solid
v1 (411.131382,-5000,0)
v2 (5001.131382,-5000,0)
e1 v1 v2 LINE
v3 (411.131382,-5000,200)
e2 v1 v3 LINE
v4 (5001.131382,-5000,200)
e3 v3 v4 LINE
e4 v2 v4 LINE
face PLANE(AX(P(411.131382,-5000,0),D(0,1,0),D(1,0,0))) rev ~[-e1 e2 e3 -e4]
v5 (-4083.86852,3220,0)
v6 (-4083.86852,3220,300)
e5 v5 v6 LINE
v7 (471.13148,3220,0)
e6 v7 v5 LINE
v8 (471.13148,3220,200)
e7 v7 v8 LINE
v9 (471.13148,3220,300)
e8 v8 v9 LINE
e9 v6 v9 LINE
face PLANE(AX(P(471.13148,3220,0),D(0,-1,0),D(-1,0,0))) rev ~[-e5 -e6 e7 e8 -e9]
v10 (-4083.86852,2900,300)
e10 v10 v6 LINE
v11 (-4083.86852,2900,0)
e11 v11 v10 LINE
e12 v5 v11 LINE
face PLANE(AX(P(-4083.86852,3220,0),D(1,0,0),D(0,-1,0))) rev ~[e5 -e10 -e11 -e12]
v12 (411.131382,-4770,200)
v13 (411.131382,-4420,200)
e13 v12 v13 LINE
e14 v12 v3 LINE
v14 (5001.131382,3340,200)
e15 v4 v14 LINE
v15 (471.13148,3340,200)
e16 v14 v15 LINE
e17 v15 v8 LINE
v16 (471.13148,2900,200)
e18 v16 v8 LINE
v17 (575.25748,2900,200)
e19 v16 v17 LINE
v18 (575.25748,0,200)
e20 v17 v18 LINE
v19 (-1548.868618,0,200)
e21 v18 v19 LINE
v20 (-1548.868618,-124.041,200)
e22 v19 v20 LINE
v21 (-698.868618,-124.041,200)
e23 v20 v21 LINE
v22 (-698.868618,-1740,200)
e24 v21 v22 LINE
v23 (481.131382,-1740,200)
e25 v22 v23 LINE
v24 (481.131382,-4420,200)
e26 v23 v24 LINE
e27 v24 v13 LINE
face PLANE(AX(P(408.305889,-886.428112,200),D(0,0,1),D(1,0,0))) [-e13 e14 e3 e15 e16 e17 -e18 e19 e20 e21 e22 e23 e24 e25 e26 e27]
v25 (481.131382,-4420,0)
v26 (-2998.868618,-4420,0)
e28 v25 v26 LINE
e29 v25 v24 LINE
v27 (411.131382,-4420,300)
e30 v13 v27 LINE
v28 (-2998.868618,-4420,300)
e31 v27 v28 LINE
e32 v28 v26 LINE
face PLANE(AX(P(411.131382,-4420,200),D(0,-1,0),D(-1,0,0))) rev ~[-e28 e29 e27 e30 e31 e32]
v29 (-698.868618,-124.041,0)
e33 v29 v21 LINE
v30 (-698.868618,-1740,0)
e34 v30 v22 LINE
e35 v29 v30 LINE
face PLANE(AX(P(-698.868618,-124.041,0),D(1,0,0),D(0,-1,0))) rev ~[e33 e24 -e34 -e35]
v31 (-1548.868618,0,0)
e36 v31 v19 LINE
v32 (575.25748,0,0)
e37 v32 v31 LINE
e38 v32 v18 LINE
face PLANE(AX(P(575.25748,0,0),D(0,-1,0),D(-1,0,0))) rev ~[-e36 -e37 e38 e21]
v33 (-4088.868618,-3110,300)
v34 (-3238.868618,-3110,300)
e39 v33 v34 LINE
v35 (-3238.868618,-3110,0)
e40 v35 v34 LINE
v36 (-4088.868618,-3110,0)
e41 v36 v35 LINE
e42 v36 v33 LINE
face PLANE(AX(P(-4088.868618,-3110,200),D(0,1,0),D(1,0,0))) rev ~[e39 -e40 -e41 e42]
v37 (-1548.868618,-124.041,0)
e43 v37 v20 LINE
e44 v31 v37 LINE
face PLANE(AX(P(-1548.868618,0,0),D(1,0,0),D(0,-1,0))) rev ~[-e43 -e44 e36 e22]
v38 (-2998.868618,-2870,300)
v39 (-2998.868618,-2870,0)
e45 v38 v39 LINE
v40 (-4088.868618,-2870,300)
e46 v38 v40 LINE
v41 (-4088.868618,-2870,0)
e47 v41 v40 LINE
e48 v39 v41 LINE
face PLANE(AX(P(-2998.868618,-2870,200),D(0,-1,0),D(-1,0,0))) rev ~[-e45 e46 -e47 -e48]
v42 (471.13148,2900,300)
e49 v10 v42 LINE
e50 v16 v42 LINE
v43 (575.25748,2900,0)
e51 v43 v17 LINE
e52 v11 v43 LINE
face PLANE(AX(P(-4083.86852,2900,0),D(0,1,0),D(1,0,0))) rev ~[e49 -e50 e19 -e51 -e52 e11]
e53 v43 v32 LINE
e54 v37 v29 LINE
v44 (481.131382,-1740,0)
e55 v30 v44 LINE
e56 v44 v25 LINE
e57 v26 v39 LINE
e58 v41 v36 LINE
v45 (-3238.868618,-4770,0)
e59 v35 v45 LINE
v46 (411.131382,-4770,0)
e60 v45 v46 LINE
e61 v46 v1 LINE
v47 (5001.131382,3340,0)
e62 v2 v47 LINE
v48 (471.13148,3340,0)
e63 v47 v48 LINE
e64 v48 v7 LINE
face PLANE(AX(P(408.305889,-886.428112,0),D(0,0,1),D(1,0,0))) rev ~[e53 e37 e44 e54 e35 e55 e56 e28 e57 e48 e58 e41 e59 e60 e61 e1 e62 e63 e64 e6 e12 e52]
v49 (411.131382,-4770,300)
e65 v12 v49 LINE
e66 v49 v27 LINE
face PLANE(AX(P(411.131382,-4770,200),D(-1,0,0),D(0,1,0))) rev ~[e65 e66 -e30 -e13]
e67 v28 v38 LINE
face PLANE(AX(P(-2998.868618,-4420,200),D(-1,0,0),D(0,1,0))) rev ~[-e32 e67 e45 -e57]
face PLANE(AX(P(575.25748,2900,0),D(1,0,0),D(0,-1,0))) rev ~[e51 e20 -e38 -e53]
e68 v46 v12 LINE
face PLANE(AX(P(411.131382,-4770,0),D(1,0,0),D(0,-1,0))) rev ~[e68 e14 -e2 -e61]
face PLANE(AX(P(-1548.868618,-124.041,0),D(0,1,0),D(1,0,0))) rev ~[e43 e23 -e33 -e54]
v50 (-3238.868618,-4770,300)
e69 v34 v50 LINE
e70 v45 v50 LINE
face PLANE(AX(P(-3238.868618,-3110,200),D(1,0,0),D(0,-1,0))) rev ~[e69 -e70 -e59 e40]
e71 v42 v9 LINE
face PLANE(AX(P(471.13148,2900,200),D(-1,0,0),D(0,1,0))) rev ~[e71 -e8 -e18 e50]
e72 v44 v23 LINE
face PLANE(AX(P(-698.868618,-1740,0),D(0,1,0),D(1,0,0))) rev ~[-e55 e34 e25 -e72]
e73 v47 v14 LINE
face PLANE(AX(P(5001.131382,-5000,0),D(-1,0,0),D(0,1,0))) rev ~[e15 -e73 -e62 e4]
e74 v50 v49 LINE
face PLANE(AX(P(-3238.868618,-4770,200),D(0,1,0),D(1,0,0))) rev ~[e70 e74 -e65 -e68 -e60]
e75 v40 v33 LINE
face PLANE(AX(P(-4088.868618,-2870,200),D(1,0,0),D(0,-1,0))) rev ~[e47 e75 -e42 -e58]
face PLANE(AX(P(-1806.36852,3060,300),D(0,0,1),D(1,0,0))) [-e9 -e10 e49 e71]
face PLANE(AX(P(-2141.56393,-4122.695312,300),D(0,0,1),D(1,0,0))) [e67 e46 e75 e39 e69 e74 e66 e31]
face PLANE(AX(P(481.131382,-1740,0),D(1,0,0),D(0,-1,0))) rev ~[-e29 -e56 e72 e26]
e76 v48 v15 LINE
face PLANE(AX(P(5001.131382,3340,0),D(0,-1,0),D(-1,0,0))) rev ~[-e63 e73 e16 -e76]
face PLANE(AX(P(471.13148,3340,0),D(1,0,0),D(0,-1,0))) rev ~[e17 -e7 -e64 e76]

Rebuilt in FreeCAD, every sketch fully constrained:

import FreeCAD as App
import Part
import Sketcher

V = App.Vector
Q = App.Units.Quantity


def add_polygon(sketch, points):
    """Adds a closed chain of lines whose ends are joined by coincident constraints."""
    first, n = sketch.GeometryCount, len(points)
    for a, b in zip(points, points[1:] + points[:1]):
        sketch.addGeometry(Part.LineSegment(App.Vector(*a, 0), App.Vector(*b, 0)), False)
    for i in range(n):
        sketch.addConstraint(Sketcher.Constraint("Coincident", first + i, 2, first + (i + 1) % n, 1))

doc = App.newDocument("Part")
body = doc.addObject("PartDesign::Body", "Body")

sketch1 = body.newObject("Sketcher::SketchObject", "Sketch")
sketch1.AttachmentSupport = (doc.getObject("XY_Plane"), [""])
sketch1.MapMode = "FlatFace"
add_polygon(sketch1, [(-4089, -2870), (-4089, -3110), (-3239, -3110), (-3239, -4770), (411, -4770), (411, -5000), (5001, -5000), (5001, 3340), (471, 3340), (471, 3220), (-4084, 3220), (-4084, 2900), (575, 2900), (575, 0), (-1549, 0), (-1549, -124), (-699, -124), (-699, -1740), (481, -1740), (481, -4420), (-2999, -4420), (-2999, -2870)])
sketch1.addConstraint([
    Sketcher.Constraint("Vertical", 0),
    Sketcher.Constraint("Horizontal", 1),
    Sketcher.Constraint("Vertical", 2),
    Sketcher.Constraint("Horizontal", 3),
    Sketcher.Constraint("Vertical", 4),
    Sketcher.Constraint("Horizontal", 5),
    Sketcher.Constraint("Vertical", 6),
    Sketcher.Constraint("Horizontal", 7),
    Sketcher.Constraint("Vertical", 8),
    Sketcher.Constraint("Horizontal", 9),
    Sketcher.Constraint("Vertical", 10),
    Sketcher.Constraint("Horizontal", 11),
    Sketcher.Constraint("Vertical", 12),
    Sketcher.Constraint("Horizontal", 13),
    Sketcher.Constraint("Vertical", 14),
    Sketcher.Constraint("Horizontal", 15),
    Sketcher.Constraint("Vertical", 16),
    Sketcher.Constraint("Horizontal", 17),
    Sketcher.Constraint("Vertical", 18),
    Sketcher.Constraint("Horizontal", 19),
    Sketcher.Constraint("Vertical", 20),
    Sketcher.Constraint("Horizontal", 21),
    Sketcher.Constraint("PointOnObject", 12, 2, -1),
    Sketcher.Constraint("Equal", 1, 15),
    Sketcher.Constraint("DistanceX", 1, 1, 1, 2, Q("850 mm")),
    Sketcher.Constraint("DistanceX", 3, 1, 3, 2, Q("3650 mm")),
    Sketcher.Constraint("DistanceX", 5, 1, 5, 2, Q("4590 mm")),
    Sketcher.Constraint("DistanceX", 9, 2, 9, 1, Q("4555 mm")),
    Sketcher.Constraint("DistanceX", 17, 1, 17, 2, Q("1180 mm")),
    Sketcher.Constraint("DistanceX", 19, 2, 19, 1, Q("3480 mm")),
    Sketcher.Constraint("DistanceX", 21, 2, 21, 1, Q("1090 mm")),
    Sketcher.Constraint("DistanceY", 0, 2, 0, 1, Q("240 mm")),
    Sketcher.Constraint("DistanceY", 2, 2, 2, 1, Q("1660 mm")),
    Sketcher.Constraint("DistanceY", 4, 2, 4, 1, Q("230 mm")),
    Sketcher.Constraint("DistanceY", 6, 1, 6, 2, Q("8340 mm")),
    Sketcher.Constraint("DistanceY", 8, 2, 8, 1, Q("120 mm")),
    Sketcher.Constraint("DistanceY", 10, 2, 10, 1, Q("320 mm")),
    Sketcher.Constraint("DistanceY", 12, 2, 12, 1, Q("2900 mm")),
    Sketcher.Constraint("DistanceY", 18, 2, 18, 1, Q("2680 mm")),
    Sketcher.Constraint("DistanceY", 20, 1, 20, 2, Q("1550 mm")),
    Sketcher.Constraint("DistanceX", 11, 1, 11, 2, Q("4659.126 mm")),
    Sketcher.Constraint("DistanceY", 14, 2, 14, 1, Q("124.041 mm")),
    Sketcher.Constraint("DistanceX", 7, 2, 7, 1, Q("4529.999902 mm")),
    Sketcher.Constraint("DistanceX", -1, 1, 3, 2, Q("411.131382 mm")),
])
pad1 = body.newObject("PartDesign::Pad", "Pad")
pad1.Profile = sketch1
pad1.Length = 200

sketch2 = body.newObject("Sketcher::SketchObject", "Sketch001")
sketch2.AttachmentSupport = (doc.getObject("XY_Plane"), [""])
sketch2.MapMode = "FlatFace"
sketch2.AttachmentOffset = App.Placement(V(0, 0, 200), App.Rotation())
add_polygon(sketch2, [(-2999, -2870), (-4089, -2870), (-4089, -3110), (-3239, -3110), (-3239, -4770), (411, -4770), (411, -4420), (-2999, -4420)])
add_polygon(sketch2, [(-4084, 3220), (-4084, 2900), (471, 2900), (471, 3220)])
sketch2.addConstraint([
    Sketcher.Constraint("Horizontal", 0),
    Sketcher.Constraint("Vertical", 1),
    Sketcher.Constraint("Horizontal", 2),
    Sketcher.Constraint("Vertical", 3),
    Sketcher.Constraint("Horizontal", 4),
    Sketcher.Constraint("Vertical", 5),
    Sketcher.Constraint("Horizontal", 6),
    Sketcher.Constraint("Vertical", 7),
    Sketcher.Constraint("Vertical", 8),
    Sketcher.Constraint("Horizontal", 9),
    Sketcher.Constraint("Vertical", 10),
    Sketcher.Constraint("Horizontal", 11),
    Sketcher.Constraint("DistanceX", 0, 2, 0, 1, Q("1090 mm")),
    Sketcher.Constraint("DistanceX", 2, 1, 2, 2, Q("850 mm")),
    Sketcher.Constraint("DistanceX", 4, 1, 4, 2, Q("3650 mm")),
    Sketcher.Constraint("DistanceX", 9, 1, 9, 2, Q("4555 mm")),
    Sketcher.Constraint("DistanceY", 1, 2, 1, 1, Q("240 mm")),
    Sketcher.Constraint("DistanceY", 3, 2, 3, 1, Q("1660 mm")),
    Sketcher.Constraint("DistanceY", 5, 1, 5, 2, Q("350 mm")),
    Sketcher.Constraint("DistanceY", 8, 2, 8, 1, Q("320 mm")),
    Sketcher.Constraint("DistanceY", 0, 2, -1, 1, Q("2870 mm")),
    Sketcher.Constraint("DistanceY", -1, 1, 8, 2, Q("2900 mm")),
    Sketcher.Constraint("DistanceX", 8, 2, 7, 2, Q("1084.999902 mm")),
    Sketcher.Constraint("DistanceX", -1, 1, 4, 2, Q("411.131382 mm")),
])
pad2 = body.newObject("PartDesign::Pad", "Pad001")
pad2.Profile = sketch2
pad2.Length = 100

doc.recompute()
